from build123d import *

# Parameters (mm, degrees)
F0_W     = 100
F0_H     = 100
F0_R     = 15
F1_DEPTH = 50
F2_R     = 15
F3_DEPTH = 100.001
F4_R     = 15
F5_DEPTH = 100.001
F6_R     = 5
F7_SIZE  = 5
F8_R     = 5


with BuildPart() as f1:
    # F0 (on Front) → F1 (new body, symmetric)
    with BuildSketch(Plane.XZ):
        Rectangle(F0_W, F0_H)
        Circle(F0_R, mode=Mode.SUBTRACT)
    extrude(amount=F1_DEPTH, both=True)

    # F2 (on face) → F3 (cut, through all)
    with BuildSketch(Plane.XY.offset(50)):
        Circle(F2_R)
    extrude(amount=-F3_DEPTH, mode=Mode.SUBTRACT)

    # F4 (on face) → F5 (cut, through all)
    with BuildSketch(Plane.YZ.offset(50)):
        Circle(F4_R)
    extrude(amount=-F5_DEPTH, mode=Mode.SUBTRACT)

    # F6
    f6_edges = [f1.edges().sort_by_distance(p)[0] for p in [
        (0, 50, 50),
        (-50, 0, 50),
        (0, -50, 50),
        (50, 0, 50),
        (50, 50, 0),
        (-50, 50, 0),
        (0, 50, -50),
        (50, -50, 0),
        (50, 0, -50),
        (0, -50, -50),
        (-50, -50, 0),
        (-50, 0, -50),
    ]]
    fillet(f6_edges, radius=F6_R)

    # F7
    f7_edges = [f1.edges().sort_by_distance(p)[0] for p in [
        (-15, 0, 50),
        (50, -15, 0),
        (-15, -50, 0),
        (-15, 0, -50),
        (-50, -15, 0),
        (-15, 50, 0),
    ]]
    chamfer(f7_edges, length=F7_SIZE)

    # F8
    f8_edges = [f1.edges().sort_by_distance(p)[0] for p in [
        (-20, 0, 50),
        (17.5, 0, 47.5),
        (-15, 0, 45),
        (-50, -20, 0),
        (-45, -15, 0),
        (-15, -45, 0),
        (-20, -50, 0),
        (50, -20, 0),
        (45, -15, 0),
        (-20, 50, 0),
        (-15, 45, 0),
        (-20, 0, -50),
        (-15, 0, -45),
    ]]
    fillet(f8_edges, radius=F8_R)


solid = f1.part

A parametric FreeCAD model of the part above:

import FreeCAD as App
import Part
import Sketcher


def edges_at(feature, points):
    """Names of the edges that pass closest to the given points."""
    edges = feature.Shape.Edges
    near = lambda p: min(range(len(edges)), key=lambda i: edges[i].distToShape(Part.Vertex(*p))[0])
    return sorted({f"Edge{near(p) + 1}" for p in points})


def add_polygon(sketch, points):
    """Adds a closed chain of lines whose ends are joined by coincident constraints."""
    first, n = sketch.GeometryCount, len(points)
    for a, b in zip(points, points[1:] + points[:1]):
        sketch.addGeometry(Part.LineSegment(App.Vector(*a, 0), App.Vector(*b, 0)), False)
    for i in range(n):
        sketch.addConstraint(Sketcher.Constraint("Coincident", first + i, 2, first + (i + 1) % n, 1))

doc = App.newDocument("Part")
body = doc.addObject("PartDesign::Body", "Body")

sketch1 = body.newObject("Sketcher::SketchObject", "Sketch")
sketch1.AttachmentSupport = (doc.getObject("XZ_Plane"), [""])
sketch1.MapMode = "FlatFace"
add_polygon(sketch1, [(-50, 50), (-50, -50), (50, -50), (50, 50)])
sketch1.addGeometry(Part.Circle(App.Vector(0, 0, 0), App.Vector(0, 0, 1), 15), False)
sketch1.addConstraint([
    Sketcher.Constraint("Vertical", 0),
    Sketcher.Constraint("Horizontal", 1),
    Sketcher.Constraint("Vertical", 2),
    Sketcher.Constraint("Horizontal", 3),
    Sketcher.Constraint("Coincident", 4, 3, -1, 1),
    Sketcher.Constraint("Symmetric", 0, 2, 2, 2, -1, 1),
    Sketcher.Constraint("Equal", 3, 0),
    Sketcher.Constraint("Diameter", 4, 30.0),
    Sketcher.Constraint("DistanceX", 1, 1, 1, 2, 100.0),
])
pad1 = body.newObject("PartDesign::Pad", "Pad")
pad1.Profile = sketch1
pad1.Length = 100
pad1.Midplane = True

sketch2 = body.newObject("Sketcher::SketchObject", "Sketch001")
sketch2.AttachmentSupport = (doc.getObject("XY_Plane"), [""])
sketch2.MapMode = "FlatFace"
sketch2.AttachmentOffset = App.Placement(App.Vector(0, 0, 50), App.Rotation())
sketch2.addGeometry(Part.Circle(App.Vector(0, 0, 0), App.Vector(0, 0, 1), 15), False)
sketch2.addConstraint([
    Sketcher.Constraint("Coincident", 0, 3, -1, 1),
    Sketcher.Constraint("Diameter", 0, 30.0),
])
pocket1 = body.newObject("PartDesign::Pocket", "Pocket")
pocket1.Profile = sketch2
pocket1.Type = "ThroughAll"

sketch3 = body.newObject("Sketcher::SketchObject", "Sketch002")
sketch3.AttachmentSupport = (doc.getObject("YZ_Plane"), [""])
sketch3.MapMode = "FlatFace"
sketch3.AttachmentOffset = App.Placement(App.Vector(0, 0, 50), App.Rotation())
sketch3.addGeometry(Part.Circle(App.Vector(0, 0, 0), App.Vector(0, 0, 1), 15), False)
sketch3.addConstraint([
    Sketcher.Constraint("Coincident", 0, 3, -1, 1),
    Sketcher.Constraint("Diameter", 0, 30.0),
])
pocket2 = body.newObject("PartDesign::Pocket", "Pocket001")
pocket2.Profile = sketch3
pocket2.Type = "ThroughAll"
doc.recompute()

fillet = body.newObject("PartDesign::Fillet", "Fillet")
fillet.Base = (pocket2, edges_at(pocket2, [
    (0, 50, 50),
    (-50, 0, 50),
    (0, -50, 50),
    (50, 0, 50),
    (50, 50, 0),
    (-50, 50, 0),
    (0, 50, -50),
    (50, -50, 0),
    (50, 0, -50),
    (0, -50, -50),
    (-50, -50, 0),
    (-50, 0, -50),
]))
fillet.Radius = 5
doc.recompute()

chamfer = body.newObject("PartDesign::Chamfer", "Chamfer")
chamfer.Base = (fillet, edges_at(fillet, [
    (-15, 0, 50),
    (50, -15, 0),
    (-15, -50, 0),
    (-15, 0, -50),
    (-50, -15, 0),
    (-15, 50, 0),
]))
chamfer.Size = 5
doc.recompute()

fillet2 = body.newObject("PartDesign::Fillet", "Fillet001")
fillet2.Base = (chamfer, edges_at(chamfer, [
    (-20, 0, 50),
    (17.5, 0, 47.5),
    (-15, 0, 45),
    (-50, -20, 0),
    (-45, -15, 0),
    (-15, -45, 0),
    (-20, -50, 0),
    (50, -20, 0),
    (45, -15, 0),
    (-20, 50, 0),
    (-15, 45, 0),
    (-20, 0, -50),
    (-15, 0, -45),
]))
fillet2.Radius = 5

doc.recompute()
